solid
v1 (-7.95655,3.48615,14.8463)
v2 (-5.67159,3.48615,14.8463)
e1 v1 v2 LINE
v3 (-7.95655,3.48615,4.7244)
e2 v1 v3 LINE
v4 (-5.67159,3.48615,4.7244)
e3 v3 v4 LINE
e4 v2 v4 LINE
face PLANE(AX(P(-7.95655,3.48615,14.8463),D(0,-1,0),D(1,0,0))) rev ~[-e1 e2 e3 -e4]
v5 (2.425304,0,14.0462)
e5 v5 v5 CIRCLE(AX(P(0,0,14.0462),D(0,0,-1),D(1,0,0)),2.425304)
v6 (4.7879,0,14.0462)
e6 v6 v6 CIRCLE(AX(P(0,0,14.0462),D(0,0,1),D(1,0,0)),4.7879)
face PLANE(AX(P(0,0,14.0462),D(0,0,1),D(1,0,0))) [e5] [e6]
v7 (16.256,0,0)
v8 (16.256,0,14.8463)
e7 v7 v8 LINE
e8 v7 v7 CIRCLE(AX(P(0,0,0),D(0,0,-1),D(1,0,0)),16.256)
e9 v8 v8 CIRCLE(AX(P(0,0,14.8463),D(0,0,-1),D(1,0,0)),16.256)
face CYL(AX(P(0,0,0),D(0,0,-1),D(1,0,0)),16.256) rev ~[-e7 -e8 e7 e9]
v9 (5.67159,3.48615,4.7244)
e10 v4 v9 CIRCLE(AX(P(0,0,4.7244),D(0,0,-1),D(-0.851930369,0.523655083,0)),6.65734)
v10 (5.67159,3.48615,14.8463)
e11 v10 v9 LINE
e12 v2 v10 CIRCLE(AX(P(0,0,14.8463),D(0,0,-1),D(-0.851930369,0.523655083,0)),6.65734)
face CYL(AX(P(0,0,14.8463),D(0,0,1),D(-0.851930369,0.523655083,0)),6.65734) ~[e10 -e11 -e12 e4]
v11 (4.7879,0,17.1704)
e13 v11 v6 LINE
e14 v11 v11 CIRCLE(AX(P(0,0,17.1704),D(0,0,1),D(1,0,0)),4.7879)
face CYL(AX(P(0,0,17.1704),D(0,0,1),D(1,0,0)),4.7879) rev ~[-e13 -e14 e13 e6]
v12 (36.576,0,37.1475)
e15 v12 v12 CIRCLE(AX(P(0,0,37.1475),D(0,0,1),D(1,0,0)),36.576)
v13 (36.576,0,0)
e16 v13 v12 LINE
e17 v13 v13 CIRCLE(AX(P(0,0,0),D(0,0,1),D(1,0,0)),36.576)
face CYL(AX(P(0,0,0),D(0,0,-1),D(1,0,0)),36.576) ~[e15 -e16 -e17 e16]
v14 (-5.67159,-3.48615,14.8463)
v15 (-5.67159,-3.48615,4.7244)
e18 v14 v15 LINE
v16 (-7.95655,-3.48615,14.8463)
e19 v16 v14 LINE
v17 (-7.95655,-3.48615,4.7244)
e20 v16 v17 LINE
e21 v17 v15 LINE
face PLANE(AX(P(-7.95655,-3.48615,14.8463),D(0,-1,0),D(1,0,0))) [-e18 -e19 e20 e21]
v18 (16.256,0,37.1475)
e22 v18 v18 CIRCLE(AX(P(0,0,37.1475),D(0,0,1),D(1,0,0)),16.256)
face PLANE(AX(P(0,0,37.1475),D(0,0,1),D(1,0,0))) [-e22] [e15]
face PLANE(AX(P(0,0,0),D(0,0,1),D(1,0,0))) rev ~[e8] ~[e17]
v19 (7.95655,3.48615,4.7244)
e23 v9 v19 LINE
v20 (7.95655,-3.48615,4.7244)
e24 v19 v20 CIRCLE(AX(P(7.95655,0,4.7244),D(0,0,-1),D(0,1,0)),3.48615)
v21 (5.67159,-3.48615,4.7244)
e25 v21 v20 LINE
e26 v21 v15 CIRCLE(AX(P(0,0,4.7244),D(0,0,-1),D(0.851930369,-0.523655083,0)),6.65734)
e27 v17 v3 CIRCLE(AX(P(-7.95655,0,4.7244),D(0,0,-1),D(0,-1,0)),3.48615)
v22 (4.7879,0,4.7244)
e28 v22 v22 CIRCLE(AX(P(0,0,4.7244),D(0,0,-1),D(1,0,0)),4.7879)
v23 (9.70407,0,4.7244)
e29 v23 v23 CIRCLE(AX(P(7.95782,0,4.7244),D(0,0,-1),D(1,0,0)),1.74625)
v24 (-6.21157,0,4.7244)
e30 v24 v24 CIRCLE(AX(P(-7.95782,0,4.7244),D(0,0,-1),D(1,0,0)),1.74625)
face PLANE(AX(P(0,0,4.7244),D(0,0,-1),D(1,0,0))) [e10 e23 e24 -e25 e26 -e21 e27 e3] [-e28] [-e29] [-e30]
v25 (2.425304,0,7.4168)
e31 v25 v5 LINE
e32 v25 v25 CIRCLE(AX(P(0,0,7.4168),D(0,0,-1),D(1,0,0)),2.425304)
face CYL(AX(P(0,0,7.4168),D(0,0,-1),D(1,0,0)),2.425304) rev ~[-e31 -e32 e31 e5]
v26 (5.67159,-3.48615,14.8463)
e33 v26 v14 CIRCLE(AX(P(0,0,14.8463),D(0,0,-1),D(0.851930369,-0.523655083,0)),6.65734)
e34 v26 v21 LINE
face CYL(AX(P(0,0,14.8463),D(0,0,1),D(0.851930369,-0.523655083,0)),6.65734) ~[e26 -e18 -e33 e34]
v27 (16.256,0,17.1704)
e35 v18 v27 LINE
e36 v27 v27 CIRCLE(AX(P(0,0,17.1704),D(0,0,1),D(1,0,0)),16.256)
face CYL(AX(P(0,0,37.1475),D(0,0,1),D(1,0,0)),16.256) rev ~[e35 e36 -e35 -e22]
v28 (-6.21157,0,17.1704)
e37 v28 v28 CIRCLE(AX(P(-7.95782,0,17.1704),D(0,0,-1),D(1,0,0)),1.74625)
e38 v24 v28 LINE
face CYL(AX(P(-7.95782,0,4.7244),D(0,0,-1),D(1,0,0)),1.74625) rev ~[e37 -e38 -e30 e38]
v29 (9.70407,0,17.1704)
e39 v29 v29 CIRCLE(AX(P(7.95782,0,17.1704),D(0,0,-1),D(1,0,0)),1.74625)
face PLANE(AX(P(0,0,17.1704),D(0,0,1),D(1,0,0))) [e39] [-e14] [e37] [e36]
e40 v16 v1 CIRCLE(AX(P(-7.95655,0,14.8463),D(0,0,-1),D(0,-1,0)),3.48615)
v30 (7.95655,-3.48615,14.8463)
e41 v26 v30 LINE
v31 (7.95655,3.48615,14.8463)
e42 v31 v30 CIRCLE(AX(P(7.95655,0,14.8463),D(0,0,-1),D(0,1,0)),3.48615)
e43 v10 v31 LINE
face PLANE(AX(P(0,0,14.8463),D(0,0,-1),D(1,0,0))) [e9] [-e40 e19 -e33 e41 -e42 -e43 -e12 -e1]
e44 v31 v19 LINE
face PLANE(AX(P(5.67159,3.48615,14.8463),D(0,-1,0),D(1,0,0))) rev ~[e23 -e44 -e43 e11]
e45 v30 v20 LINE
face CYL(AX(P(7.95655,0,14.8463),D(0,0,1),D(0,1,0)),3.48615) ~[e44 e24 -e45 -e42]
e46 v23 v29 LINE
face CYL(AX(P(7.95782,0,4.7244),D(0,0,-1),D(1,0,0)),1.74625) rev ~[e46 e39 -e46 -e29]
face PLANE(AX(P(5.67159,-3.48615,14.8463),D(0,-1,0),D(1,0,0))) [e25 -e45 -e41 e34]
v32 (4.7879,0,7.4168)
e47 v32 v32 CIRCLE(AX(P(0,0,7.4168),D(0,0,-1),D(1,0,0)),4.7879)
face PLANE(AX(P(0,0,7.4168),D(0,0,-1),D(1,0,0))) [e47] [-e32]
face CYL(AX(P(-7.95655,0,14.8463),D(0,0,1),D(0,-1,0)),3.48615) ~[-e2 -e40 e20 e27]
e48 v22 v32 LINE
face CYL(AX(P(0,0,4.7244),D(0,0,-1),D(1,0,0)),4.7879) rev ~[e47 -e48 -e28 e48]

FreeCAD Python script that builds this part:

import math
import FreeCAD as App
import Part
import Sketcher

V = App.Vector
Q = App.Units.Quantity

doc = App.newDocument("Part")
body = doc.addObject("PartDesign::Body", "Body")

# Sketch on XY plane
sketch1 = body.newObject("Sketcher::SketchObject", "Sketch")
sketch1.AttachmentSupport = (doc.getObject("XY_Plane"), [""])
sketch1.MapMode = "FlatFace"
sketch1.addGeometry(Part.Circle(V(0, 0, 0), V(0, 0, 1), 37), False)
sketch1.addConstraint([
    Sketcher.Constraint("Coincident", 0, 3, -1, 1),
    Sketcher.Constraint("Diameter", 0, Q("2.88 in")),
])
pad1 = body.newObject("PartDesign::Pad", "Pad")
pad1.Profile = sketch1
pad1.Length = Q("1.4625 in")

# Sketch on XY plane
sketch2 = body.newObject("Sketcher::SketchObject", "Sketch001")
sketch2.AttachmentSupport = (doc.getObject("XY_Plane"), [""])
sketch2.MapMode = "FlatFace"
sketch2.AttachmentOffset = App.Placement(V(0, 0, 1.4625 * 25.4), App.Rotation())
sketch2.addGeometry(Part.Circle(V(0, 0, 0), V(0, 0, 1), 16), False)
sketch2.addConstraint([
    Sketcher.Constraint("Coincident", 0, 3, -1, 1),
    Sketcher.Constraint("Diameter", 0, Q("1.28 in")),
])
pocket1 = body.newObject("PartDesign::Pocket", "Pocket")
pocket1.Profile = sketch2
pocket1.Length = Q("0.7865 in")

# Sketch on XY plane
sketch3 = body.newObject("Sketcher::SketchObject", "Sketch002")
sketch3.AttachmentSupport = (doc.getObject("XY_Plane"), [""])
sketch3.MapMode = "FlatFace"
sketch3.addGeometry(Part.Circle(V(0, 0, 0), V(0, 0, 1), 16), False)
sketch3.addConstraint([
    Sketcher.Constraint("Coincident", 0, 3, -1, 1),
    Sketcher.Constraint("Diameter", 0, Q("1.28 in")),
])
pocket2 = body.newObject("PartDesign::Pocket", "Pocket001")
pocket2.Profile = sketch3
pocket2.Length = Q("0.5845 in")
pocket2.Reversed = True

# Sketch on XY plane
sketch4 = body.newObject("Sketcher::SketchObject", "Sketch003")
sketch4.AttachmentSupport = (doc.getObject("XY_Plane"), [""])
sketch4.MapMode = "FlatFace"
sketch4.AttachmentOffset = App.Placement(V(0, 0, 0.5845 * 25.4), App.Rotation())
sketch4.addGeometry([
    Part.ArcOfCircle(Part.Circle(V(0, 0, 0), V(0, 0, 1), 6.7), math.radians(32), math.radians(148)),  # 0
    Part.LineSegment(V(5.7, 3.5, 0), V(8, 3.5, 0)),  # 1
    Part.ArcOfCircle(Part.Circle(V(8, 0, 0), V(0, 0, 1), 3.5), math.radians(-90), math.radians(90)),  # 2
    Part.LineSegment(V(8, -3.5, 0), V(5.7, -3.5, 0)),  # 3
    Part.ArcOfCircle(Part.Circle(V(0, 0, 0), V(0, 0, 1), 6.7), math.radians(-148), math.radians(-32)),  # 4
    Part.LineSegment(V(-5.7, -3.5, 0), V(-8, -3.5, 0)),  # 5
    Part.ArcOfCircle(Part.Circle(V(-8, 0, 0), V(0, 0, 1), 3.5), math.radians(90), math.radians(270)),  # 6
    Part.LineSegment(V(-8, 3.5, 0), V(-5.7, 3.5, 0)),  # 7
], False)
sketch4.addConstraint([
    Sketcher.Constraint("Coincident", 0, 1, 1, 1),
    Sketcher.Constraint("Tangent", 1, 2, 2, 2),
    Sketcher.Constraint("Tangent", 2, 1, 3, 1),
    Sketcher.Constraint("Coincident", 3, 2, 4, 2),
    Sketcher.Constraint("Coincident", 4, 1, 5, 1),
    Sketcher.Constraint("Tangent", 5, 2, 6, 2),
    Sketcher.Constraint("Tangent", 6, 1, 7, 1),
    Sketcher.Constraint("Coincident", 7, 2, 0, 2),
    Sketcher.Constraint("Horizontal", 1),
    Sketcher.Constraint("Horizontal", 3),
    Sketcher.Constraint("Horizontal", 5),
    Sketcher.Constraint("Horizontal", 7),
    Sketcher.Constraint("Coincident", 0, 3, -1, 1),
    Sketcher.Constraint("Coincident", 4, 3, -1, 1),
    Sketcher.Constraint("Equal", 0, 4),
    Sketcher.Constraint("Equal", 2, 6),
    Sketcher.Constraint("Symmetric", 2, 3, 6, 3, -1, 1),
    Sketcher.Constraint("PointOnObject", 2, 3, -1),
    Sketcher.Constraint("Radius", 0, Q("0.2621 in")),
    Sketcher.Constraint("Radius", 2, Q("3.48615 mm")),
    Sketcher.Constraint("DistanceX", 6, 3, 2, 3, Q("0.6265 in")),
])
pad2 = body.newObject("PartDesign::Pad", "Pad001")
pad2.Profile = sketch4
pad2.Length = Q("0.3985 in")
pad2.Reversed = True

# Sketch on XY plane
sketch5 = body.newObject("Sketcher::SketchObject", "Sketch004")
sketch5.AttachmentSupport = (doc.getObject("XY_Plane"), [""])
sketch5.MapMode = "FlatFace"
sketch5.AttachmentOffset = App.Placement(V(0, 0, 0.186 * 25.4), App.Rotation())
sketch5.addGeometry([
    Part.Circle(V(8, 0, 0), V(0, 0, 1), 1.7),
    Part.Circle(V(-8, 0, 0), V(0, 0, 1), 1.7),
], False)
sketch5.addConstraint([
    Sketcher.Constraint("Equal", 0, 1),
    Sketcher.Constraint("Symmetric", 0, 3, 1, 3, -1, 1),
    Sketcher.Constraint("PointOnObject", 0, 3, -1),
    Sketcher.Constraint("Diameter", 0, Q("0.1375 in")),
    Sketcher.Constraint("DistanceX", -1, 1, 0, 3, Q("0.3133 in")),
])
pocket3 = body.newObject("PartDesign::Pocket", "Pocket002")
pocket3.Profile = sketch5
pocket3.Type = "ThroughAll"
pocket3.Reversed = True

# Sketch on XY plane
sketch6 = body.newObject("Sketcher::SketchObject", "Sketch005")
sketch6.AttachmentSupport = (doc.getObject("XY_Plane"), [""])
sketch6.MapMode = "FlatFace"
sketch6.AttachmentOffset = App.Placement(V(0, 0, 0.186 * 25.4), App.Rotation())
sketch6.addGeometry(Part.Circle(V(0, 0, 0), V(0, 0, 1), 4.8), False)
sketch6.addConstraint([
    Sketcher.Constraint("Coincident", 0, 3, -1, 1),
    Sketcher.Constraint("Diameter", 0, Q("0.377 in")),
])
pocket4 = body.newObject("PartDesign::Pocket", "Pocket003")
pocket4.Profile = sketch6
pocket4.Length = Q("0.106 in")
pocket4.Reversed = True

# Sketch on XY plane
sketch7 = body.newObject("Sketcher::SketchObject", "Sketch006")
sketch7.AttachmentSupport = (doc.getObject("XY_Plane"), [""])
sketch7.MapMode = "FlatFace"
sketch7.AttachmentOffset = App.Placement(V(0, 0, 0.292 * 25.4), App.Rotation())
sketch7.addGeometry(Part.Circle(V(0, 0, 0), V(0, 0, 1), 2.4), False)
sketch7.addConstraint([
    Sketcher.Constraint("Coincident", 0, 3, -1, 1),
    Sketcher.Constraint("Diameter", 0, Q("4.850608 mm")),
])
pocket5 = body.newObject("PartDesign::Pocket", "Pocket004")
pocket5.Profile = sketch7
pocket5.Type = "ThroughAll"
pocket5.Reversed = True

# Sketch on XY plane
sketch8 = body.newObject("Sketcher::SketchObject", "Sketch007")
sketch8.AttachmentSupport = (doc.getObject("XY_Plane"), [""])
sketch8.MapMode = "FlatFace"
sketch8.AttachmentOffset = App.Placement(V(0, 0, 0.676 * 25.4), App.Rotation())
sketch8.addGeometry(Part.Circle(V(0, 0, 0), V(0, 0, 1), 4.8), False)
sketch8.addConstraint([
    Sketcher.Constraint("Coincident", 0, 3, -1, 1),
    Sketcher.Constraint("Diameter", 0, Q("0.377 in")),
])
pocket6 = body.newObject("PartDesign::Pocket", "Pocket005")
pocket6.Profile = sketch8
pocket6.Length = Q("0.123 in")

doc.recompute()
